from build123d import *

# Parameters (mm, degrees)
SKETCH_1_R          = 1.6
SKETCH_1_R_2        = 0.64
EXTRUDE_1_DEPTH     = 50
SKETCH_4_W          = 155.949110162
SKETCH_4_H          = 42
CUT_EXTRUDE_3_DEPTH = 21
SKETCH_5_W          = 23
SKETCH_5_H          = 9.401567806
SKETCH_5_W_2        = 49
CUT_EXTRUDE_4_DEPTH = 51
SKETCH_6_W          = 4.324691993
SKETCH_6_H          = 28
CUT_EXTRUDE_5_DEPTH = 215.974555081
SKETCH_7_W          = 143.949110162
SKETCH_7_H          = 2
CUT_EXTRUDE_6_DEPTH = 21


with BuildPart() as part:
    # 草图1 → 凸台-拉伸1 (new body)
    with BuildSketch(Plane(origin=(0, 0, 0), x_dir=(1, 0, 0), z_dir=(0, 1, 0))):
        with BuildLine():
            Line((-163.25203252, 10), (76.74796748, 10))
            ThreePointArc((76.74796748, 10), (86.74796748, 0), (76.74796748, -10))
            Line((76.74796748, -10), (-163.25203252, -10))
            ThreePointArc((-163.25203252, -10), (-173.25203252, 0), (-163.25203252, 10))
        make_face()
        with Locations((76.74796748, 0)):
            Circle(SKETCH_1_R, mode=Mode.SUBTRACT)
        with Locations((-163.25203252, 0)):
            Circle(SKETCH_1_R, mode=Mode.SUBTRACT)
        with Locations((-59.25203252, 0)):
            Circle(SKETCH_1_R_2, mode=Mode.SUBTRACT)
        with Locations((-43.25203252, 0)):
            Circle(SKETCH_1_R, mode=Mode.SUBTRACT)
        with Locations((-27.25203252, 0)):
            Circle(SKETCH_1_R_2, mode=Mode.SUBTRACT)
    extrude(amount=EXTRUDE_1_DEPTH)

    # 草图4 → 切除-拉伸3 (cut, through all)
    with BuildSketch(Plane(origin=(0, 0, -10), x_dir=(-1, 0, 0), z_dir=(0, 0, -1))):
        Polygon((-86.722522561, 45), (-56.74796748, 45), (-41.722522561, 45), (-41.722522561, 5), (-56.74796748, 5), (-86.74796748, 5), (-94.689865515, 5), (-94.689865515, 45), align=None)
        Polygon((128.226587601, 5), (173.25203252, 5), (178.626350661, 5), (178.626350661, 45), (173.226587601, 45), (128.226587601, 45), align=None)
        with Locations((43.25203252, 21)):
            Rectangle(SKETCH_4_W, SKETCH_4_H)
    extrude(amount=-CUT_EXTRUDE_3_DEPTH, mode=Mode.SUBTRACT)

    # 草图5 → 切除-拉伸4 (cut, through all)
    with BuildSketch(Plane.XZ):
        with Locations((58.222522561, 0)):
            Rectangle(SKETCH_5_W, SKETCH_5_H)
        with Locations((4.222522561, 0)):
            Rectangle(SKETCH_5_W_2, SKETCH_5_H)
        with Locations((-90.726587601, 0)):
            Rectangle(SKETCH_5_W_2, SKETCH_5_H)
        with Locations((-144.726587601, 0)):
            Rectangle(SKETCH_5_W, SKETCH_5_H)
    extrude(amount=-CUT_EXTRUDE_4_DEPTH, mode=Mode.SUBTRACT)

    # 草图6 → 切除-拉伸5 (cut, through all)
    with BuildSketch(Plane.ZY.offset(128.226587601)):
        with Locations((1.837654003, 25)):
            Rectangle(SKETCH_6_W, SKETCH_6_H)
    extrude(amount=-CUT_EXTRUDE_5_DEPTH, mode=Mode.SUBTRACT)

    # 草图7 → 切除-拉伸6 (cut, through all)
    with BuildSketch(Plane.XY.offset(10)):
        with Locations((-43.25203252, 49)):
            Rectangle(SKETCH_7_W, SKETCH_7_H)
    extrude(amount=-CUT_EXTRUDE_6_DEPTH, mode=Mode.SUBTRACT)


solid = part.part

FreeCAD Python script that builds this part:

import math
import FreeCAD as App
import Part
import Sketcher

doc = App.newDocument("Part")
body = doc.addObject("PartDesign::Body", "Body")

sketch1 = body.newObject("Sketcher::SketchObject", "Sketch")
sketch1.AttachmentSupport = (doc.getObject("XZ_Plane"), [""])
sketch1.MapMode = "FlatFace"
sketch1.addGeometry([
    Part.LineSegment(App.Vector(76.7, -10, 0), App.Vector(-163.3, -10, 0)),
    Part.ArcOfCircle(Part.Circle(App.Vector(-163.3, 0, 0), App.Vector(0, 0, 1), 10), math.radians(90), math.radians(270)),
    Part.LineSegment(App.Vector(-163.3, 10, 0), App.Vector(76.7, 10, 0)),
    Part.ArcOfCircle(Part.Circle(App.Vector(76.7, 0, 0), App.Vector(0, 0, 1), 10), math.radians(-90), math.radians(90)),
    Part.Circle(App.Vector(76.7, 0, 0), App.Vector(0, 0, 1), 1.6),
    Part.Circle(App.Vector(-27.3, 0, 0), App.Vector(0, 0, 1), 0.6),
    Part.Circle(App.Vector(-43.3, 0, 0), App.Vector(0, 0, 1), 1.6),
    Part.Circle(App.Vector(-59.3, 0, 0), App.Vector(0, 0, 1), 0.6),
    Part.Circle(App.Vector(-163.3, 0, 0), App.Vector(0, 0, 1), 1.6),
], False)
sketch1.addConstraint([
    Sketcher.Constraint("Tangent", 0, 2, 1, 2),
    Sketcher.Constraint("Tangent", 1, 1, 2, 1),
    Sketcher.Constraint("Tangent", 2, 2, 3, 2),
    Sketcher.Constraint("Tangent", 3, 1, 0, 1),
    Sketcher.Constraint("Horizontal", 0),
    Sketcher.Constraint("Horizontal", 2),
    Sketcher.Constraint("Coincident", 4, 3, 3, 3),
    Sketcher.Constraint("Coincident", 8, 3, 1, 3),
    Sketcher.Constraint("Equal", 4, 6),
    Sketcher.Constraint("Equal", 5, 7),
    Sketcher.Constraint("Equal", 6, 8),
    Sketcher.Constraint("PointOnObject", 1, 3, -1),
    Sketcher.Constraint("PointOnObject", 5, 3, -1),
    Sketcher.Constraint("PointOnObject", 6, 3, -1),
    Sketcher.Constraint("PointOnObject", 7, 3, -1),
    Sketcher.Constraint("Radius", 1, 10.0),
    Sketcher.Constraint("Diameter", 4, 3.2),
    Sketcher.Constraint("Diameter", 5, 1.28),
    Sketcher.Constraint("DistanceX", 0, 2, 0, 1, 240.0),
    Sketcher.Constraint("DistanceX", 5, 3, 3, 3, 104.0),
    Sketcher.Constraint("DistanceX", 6, 3, 5, 3, 16.0),
    Sketcher.Constraint("DistanceX", 7, 3, 6, 3, 16.0),
    Sketcher.Constraint("DistanceX", 1, 3, -1, 1, 163.252033),
])
pad1 = body.newObject("PartDesign::Pad", "Pad")
pad1.Profile = sketch1
pad1.Length = 50
pad1.Reversed = True

sketch2 = body.newObject("Sketcher::SketchObject", "Sketch001")
sketch2.AttachmentSupport = (doc.getObject("XY_Plane"), [""])
sketch2.MapMode = "FlatFace"
sketch2.AttachmentOffset = App.Placement(App.Vector(0, 0, -10), App.Rotation())
sketch2.addGeometry([
    Part.LineSegment(App.Vector(42, 45, 0), App.Vector(95, 45, 0)),
    Part.LineSegment(App.Vector(95, 45, 0), App.Vector(95, 5, 0)),
    Part.LineSegment(App.Vector(95, 5, 0), App.Vector(42, 5, 0)),
    Part.LineSegment(App.Vector(42, 5, 0), App.Vector(42, 45, 0)),
    Part.LineSegment(App.Vector(-128, 5, 0), App.Vector(-179, 5, 0)),
    Part.LineSegment(App.Vector(-179, 5, 0), App.Vector(-179, 45, 0)),
    Part.LineSegment(App.Vector(-179, 45, 0), App.Vector(-128, 45, 0)),
    Part.LineSegment(App.Vector(-128, 45, 0), App.Vector(-128, 5, 0)),
    Part.LineSegment(App.Vector(35, 42, 0), App.Vector(35, 0, 0)),
    Part.LineSegment(App.Vector(35, 0, 0), App.Vector(-121, 0, 0)),
    Part.LineSegment(App.Vector(-121, 0, 0), App.Vector(-121, 42, 0)),
    Part.LineSegment(App.Vector(-121, 42, 0), App.Vector(35, 42, 0)),
], False)
sketch2.addConstraint([
    Sketcher.Constraint("Coincident", 0, 2, 1, 1),
    Sketcher.Constraint("Coincident", 1, 2, 2, 1),
    Sketcher.Constraint("Coincident", 2, 2, 3, 1),
    Sketcher.Constraint("Coincident", 3, 2, 0, 1),
    Sketcher.Constraint("Coincident", 4, 2, 5, 1),
    Sketcher.Constraint("Coincident", 5, 2, 6, 1),
    Sketcher.Constraint("Coincident", 6, 2, 7, 1),
    Sketcher.Constraint("Coincident", 7, 2, 4, 1),
    Sketcher.Constraint("Coincident", 8, 2, 9, 1),
    Sketcher.Constraint("Coincident", 9, 2, 10, 1),
    Sketcher.Constraint("Coincident", 10, 2, 11, 1),
    Sketcher.Constraint("Coincident", 11, 2, 8, 1),
    Sketcher.Constraint("Horizontal", 0),
    Sketcher.Constraint("Vertical", 1),
    Sketcher.Constraint("Horizontal", 2),
    Sketcher.Constraint("Vertical", 3),
    Sketcher.Constraint("Horizontal", 4),
    Sketcher.Constraint("Vertical", 5),
    Sketcher.Constraint("Horizontal", 6),
    Sketcher.Constraint("Vertical", 7),
    Sketcher.Constraint("Vertical", 8),
    Sketcher.Constraint("Horizontal", 9),
    Sketcher.Constraint("Vertical", 10),
    Sketcher.Constraint("Horizontal", 11),
    Sketcher.Constraint("PointOnObject", 8, 2, -1),
    Sketcher.Constraint("Horizontal", 2, 2, 4, 2),
    Sketcher.Constraint("Horizontal", 3, 2, 5, 2),
    Sketcher.Constraint("DistanceY", 1, 2, 1, 1, 40.0),
    Sketcher.Constraint("DistanceY", 8, 2, 8, 1, 42.0),
    Sketcher.Constraint("DistanceY", -1, 1, 0, 2, 45.0),
    Sketcher.Constraint("DistanceX", 8, 2, 2, 2, 7.0),
    Sketcher.Constraint("DistanceX", 7, 2, 9, 2, 7.0),
    Sketcher.Constraint("DistanceX", 9, 2, 9, 1, 155.94911),
    Sketcher.Constraint("DistanceX", 0, 1, 0, 2, 52.967343),
    Sketcher.Constraint("DistanceX", 4, 2, 4, 1, 50.399763),
    Sketcher.Constraint("DistanceX", 4, 2, -1, 1, 178.626351),
])
pocket1 = body.newObject("PartDesign::Pocket", "Pocket")
pocket1.Profile = sketch2
pocket1.Type = "ThroughAll"
pocket1.Reversed = True

sketch3 = body.newObject("Sketcher::SketchObject", "Sketch002")
sketch3.AttachmentSupport = (doc.getObject("XZ_Plane"), [""])
sketch3.MapMode = "FlatFace"
sketch3.addGeometry([
    Part.LineSegment(App.Vector(47, 5, 0), App.Vector(47, -5, 0)),
    Part.LineSegment(App.Vector(47, -5, 0), App.Vector(70, -5, 0)),
    Part.LineSegment(App.Vector(70, -5, 0), App.Vector(70, 5, 0)),
    Part.LineSegment(App.Vector(70, 5, 0), App.Vector(47, 5, 0)),
    Part.LineSegment(App.Vector(-20, 5, 0), App.Vector(-20, -5, 0)),
    Part.LineSegment(App.Vector(-20, -5, 0), App.Vector(29, -5, 0)),
    Part.LineSegment(App.Vector(29, -5, 0), App.Vector(29, 5, 0)),
    Part.LineSegment(App.Vector(29, 5, 0), App.Vector(-20, 5, 0)),
    Part.LineSegment(App.Vector(-115, 5, 0), App.Vector(-115, -5, 0)),
    Part.LineSegment(App.Vector(-115, -5, 0), App.Vector(-66, -5, 0)),
    Part.LineSegment(App.Vector(-66, -5, 0), App.Vector(-66, 5, 0)),
    Part.LineSegment(App.Vector(-66, 5, 0), App.Vector(-115, 5, 0)),
    Part.LineSegment(App.Vector(-156, 5, 0), App.Vector(-156, -5, 0)),
    Part.LineSegment(App.Vector(-156, -5, 0), App.Vector(-133, -5, 0)),
    Part.LineSegment(App.Vector(-133, -5, 0), App.Vector(-133, 5, 0)),
    Part.LineSegment(App.Vector(-133, 5, 0), App.Vector(-156, 5, 0)),
], False)
sketch3.addConstraint([
    Sketcher.Constraint("Coincident", 0, 2, 1, 1),
    Sketcher.Constraint("Coincident", 1, 2, 2, 1),
    Sketcher.Constraint("Coincident", 2, 2, 3, 1),
    Sketcher.Constraint("Coincident", 3, 2, 0, 1),
    Sketcher.Constraint("Coincident", 4, 2, 5, 1),
    Sketcher.Constraint("Coincident", 5, 2, 6, 1),
    Sketcher.Constraint("Coincident", 6, 2, 7, 1),
    Sketcher.Constraint("Coincident", 7, 2, 4, 1),
    Sketcher.Constraint("Coincident", 8, 2, 9, 1),
    Sketcher.Constraint("Coincident", 9, 2, 10, 1),
    Sketcher.Constraint("Coincident", 10, 2, 11, 1),
    Sketcher.Constraint("Coincident", 11, 2, 8, 1),
    Sketcher.Constraint("Coincident", 12, 2, 13, 1),
    Sketcher.Constraint("Coincident", 13, 2, 14, 1),
    Sketcher.Constraint("Coincident", 14, 2, 15, 1),
    Sketcher.Constraint("Coincident", 15, 2, 12, 1),
    Sketcher.Constraint("Vertical", 0),
    Sketcher.Constraint("Horizontal", 1),
    Sketcher.Constraint("Vertical", 2),
    Sketcher.Constraint("Horizontal", 3),
    Sketcher.Constraint("Vertical", 4),
    Sketcher.Constraint("Horizontal", 5),
    Sketcher.Constraint("Vertical", 6),
    Sketcher.Constraint("Horizontal", 7),
    Sketcher.Constraint("Vertical", 8),
    Sketcher.Constraint("Horizontal", 9),
    Sketcher.Constraint("Vertical", 10),
    Sketcher.Constraint("Horizontal", 11),
    Sketcher.Constraint("Vertical", 12),
    Sketcher.Constraint("Horizontal", 13),
    Sketcher.Constraint("Vertical", 14),
    Sketcher.Constraint("Horizontal", 15),
    Sketcher.Constraint("Horizontal", 1, 2, 4, 2),
    Sketcher.Constraint("Horizontal", 3, 2, 6, 2),
    Sketcher.Constraint("Horizontal", 5, 2, 8, 2),
    Sketcher.Constraint("Horizontal", 7, 2, 10, 2),
    Sketcher.Constraint("Horizontal", 9, 2, 12, 2),
    Sketcher.Constraint("Horizontal", 11, 2, 14, 2),
    Sketcher.Constraint("Equal", 7, 9),
    Sketcher.Constraint("Equal", 3, 13),
    Sketcher.Constraint("DistanceX", 1, 1, 1, 2, 23.0),
    Sketcher.Constraint("DistanceX", 5, 1, 5, 2, 49.0),
    Sketcher.Constraint("DistanceX", 4, 2, 0, 2, 67.0),
    Sketcher.Constraint("DistanceX", 12, 2, 8, 2, 41.0),
    Sketcher.Constraint("DistanceY", 0, 2, 0, 1, 9.401568),
    Sketcher.Constraint("DistanceX", 8, 2, 4, 2, 94.94911),
    Sketcher.Constraint("DistanceX", -1, 1, 0, 2, 46.722523),
    Sketcher.Constraint("DistanceY", 0, 2, -1, 1, 4.700784),
])
pocket2 = body.newObject("PartDesign::Pocket", "Pocket001")
pocket2.Profile = sketch3
pocket2.Type = "ThroughAll"

sketch4 = body.newObject("Sketcher::SketchObject", "Sketch003")
sketch4.AttachmentSupport = (doc.getObject("YZ_Plane"), [""])
sketch4.MapMode = "FlatFace"
sketch4.AttachmentOffset = App.Placement(App.Vector(0, 0, -128.226588), App.Rotation())
sketch4.addGeometry([
    Part.LineSegment(App.Vector(39, -0.3, 0), App.Vector(11, -0.3, 0)),
    Part.LineSegment(App.Vector(11, -0.3, 0), App.Vector(11, 4, 0)),
    Part.LineSegment(App.Vector(11, 4, 0), App.Vector(39, 4, 0)),
    Part.LineSegment(App.Vector(39, 4, 0), App.Vector(39, -0.3, 0)),
], False)
sketch4.addConstraint([
    Sketcher.Constraint("Coincident", 0, 2, 1, 1),
    Sketcher.Constraint("Coincident", 1, 2, 2, 1),
    Sketcher.Constraint("Coincident", 2, 2, 3, 1),
    Sketcher.Constraint("Coincident", 3, 2, 0, 1),
    Sketcher.Constraint("Horizontal", 0),
    Sketcher.Constraint("Vertical", 1),
    Sketcher.Constraint("Horizontal", 2),
    Sketcher.Constraint("Vertical", 3),
    Sketcher.Constraint("DistanceX", 0, 2, 0, 1, 28.0),
    Sketcher.Constraint("DistanceX", -1, 1, 0, 2, 11.0),
    Sketcher.Constraint("DistanceY", -1, 1, 1, 2, 4.0),
    Sketcher.Constraint("DistanceY", 1, 1, 1, 2, 4.324692),
])
pocket3 = body.newObject("PartDesign::Pocket", "Pocket002")
pocket3.Profile = sketch4
pocket3.Type = "ThroughAll"
pocket3.Reversed = True

sketch5 = body.newObject("Sketcher::SketchObject", "Sketch004")
sketch5.AttachmentSupport = (doc.getObject("XY_Plane"), [""])
sketch5.MapMode = "FlatFace"
sketch5.AttachmentOffset = App.Placement(App.Vector(0, 0, 10), App.Rotation())
sketch5.addGeometry([
    Part.LineSegment(App.Vector(-115.2, 50, 0), App.Vector(-115.2, 48, 0)),
    Part.LineSegment(App.Vector(-115.2, 48, 0), App.Vector(28.7, 48, 0)),
    Part.LineSegment(App.Vector(28.7, 48, 0), App.Vector(28.7, 50, 0)),
    Part.LineSegment(App.Vector(28.7, 50, 0), App.Vector(-115.2, 50, 0)),
], False)
sketch5.addConstraint([
    Sketcher.Constraint("Coincident", 0, 2, 1, 1),
    Sketcher.Constraint("Coincident", 1, 2, 2, 1),
    Sketcher.Constraint("Coincident", 2, 2, 3, 1),
    Sketcher.Constraint("Coincident", 3, 2, 0, 1),
    Sketcher.Constraint("Vertical", 0),
    Sketcher.Constraint("Horizontal", 1),
    Sketcher.Constraint("Vertical", 2),
    Sketcher.Constraint("Horizontal", 3),
    Sketcher.Constraint("DistanceY", 0, 2, 0, 1, 2.0),
    Sketcher.Constraint("DistanceY", -1, 1, 0, 2, 48.0),
    Sketcher.Constraint("DistanceX", 1, 1, 1, 2, 143.94911),
    Sketcher.Constraint("DistanceX", 0, 2, -1, 1, 115.226588),
])
pocket4 = body.newObject("PartDesign::Pocket", "Pocket003")
pocket4.Profile = sketch5
pocket4.Type = "ThroughAll"

doc.recompute()
